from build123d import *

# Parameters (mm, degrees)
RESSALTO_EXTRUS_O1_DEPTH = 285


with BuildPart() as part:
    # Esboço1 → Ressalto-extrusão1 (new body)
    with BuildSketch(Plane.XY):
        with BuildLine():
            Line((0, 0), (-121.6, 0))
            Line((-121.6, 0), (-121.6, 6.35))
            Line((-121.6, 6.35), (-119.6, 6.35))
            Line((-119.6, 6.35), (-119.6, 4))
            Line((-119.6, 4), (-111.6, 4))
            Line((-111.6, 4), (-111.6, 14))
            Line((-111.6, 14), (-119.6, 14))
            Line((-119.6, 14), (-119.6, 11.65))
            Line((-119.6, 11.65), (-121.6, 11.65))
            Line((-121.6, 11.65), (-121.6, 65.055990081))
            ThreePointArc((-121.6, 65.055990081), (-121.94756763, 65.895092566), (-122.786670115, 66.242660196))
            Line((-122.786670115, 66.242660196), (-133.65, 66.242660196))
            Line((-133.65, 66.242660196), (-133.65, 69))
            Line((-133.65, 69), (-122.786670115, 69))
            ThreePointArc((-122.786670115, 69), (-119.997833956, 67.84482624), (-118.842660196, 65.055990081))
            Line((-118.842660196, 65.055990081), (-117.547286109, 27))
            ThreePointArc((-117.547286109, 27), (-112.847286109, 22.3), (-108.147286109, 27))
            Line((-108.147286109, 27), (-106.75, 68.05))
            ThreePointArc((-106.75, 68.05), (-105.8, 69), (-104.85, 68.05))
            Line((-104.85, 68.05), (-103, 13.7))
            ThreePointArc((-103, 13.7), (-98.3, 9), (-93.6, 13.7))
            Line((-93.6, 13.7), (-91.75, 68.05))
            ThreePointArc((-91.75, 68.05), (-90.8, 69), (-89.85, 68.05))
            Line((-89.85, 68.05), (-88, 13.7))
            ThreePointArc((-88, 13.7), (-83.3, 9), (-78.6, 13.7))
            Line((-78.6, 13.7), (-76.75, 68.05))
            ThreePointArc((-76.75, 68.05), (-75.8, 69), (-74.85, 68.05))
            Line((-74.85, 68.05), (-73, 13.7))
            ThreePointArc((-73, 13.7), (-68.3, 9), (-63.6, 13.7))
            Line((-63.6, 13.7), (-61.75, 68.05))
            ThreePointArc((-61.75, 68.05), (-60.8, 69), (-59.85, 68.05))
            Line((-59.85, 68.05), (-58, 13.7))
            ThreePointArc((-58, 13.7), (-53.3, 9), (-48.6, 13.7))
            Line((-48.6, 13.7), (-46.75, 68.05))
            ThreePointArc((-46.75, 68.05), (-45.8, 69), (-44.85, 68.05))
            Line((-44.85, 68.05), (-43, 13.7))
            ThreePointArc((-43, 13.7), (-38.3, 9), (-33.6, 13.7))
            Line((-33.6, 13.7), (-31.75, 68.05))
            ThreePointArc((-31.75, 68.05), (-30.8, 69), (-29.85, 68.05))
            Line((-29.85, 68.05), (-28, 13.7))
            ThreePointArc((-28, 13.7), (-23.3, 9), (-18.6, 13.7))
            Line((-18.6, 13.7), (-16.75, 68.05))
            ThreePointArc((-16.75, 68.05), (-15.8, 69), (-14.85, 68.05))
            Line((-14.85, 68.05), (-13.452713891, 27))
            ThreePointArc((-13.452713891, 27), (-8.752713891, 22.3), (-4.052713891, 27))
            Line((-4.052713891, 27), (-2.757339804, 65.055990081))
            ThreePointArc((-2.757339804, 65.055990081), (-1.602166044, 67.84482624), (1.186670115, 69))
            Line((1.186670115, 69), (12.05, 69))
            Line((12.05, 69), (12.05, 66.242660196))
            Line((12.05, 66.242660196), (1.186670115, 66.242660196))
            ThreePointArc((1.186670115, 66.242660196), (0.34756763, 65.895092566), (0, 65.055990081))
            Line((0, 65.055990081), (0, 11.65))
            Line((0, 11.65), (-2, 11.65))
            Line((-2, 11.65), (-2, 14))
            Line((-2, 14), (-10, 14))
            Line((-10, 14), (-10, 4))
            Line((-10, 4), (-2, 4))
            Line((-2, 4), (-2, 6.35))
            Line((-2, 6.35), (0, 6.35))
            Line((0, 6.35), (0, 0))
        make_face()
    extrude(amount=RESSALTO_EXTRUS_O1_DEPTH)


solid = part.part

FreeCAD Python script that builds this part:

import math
import FreeCAD as App
import Part
import Sketcher

V = App.Vector

doc = App.newDocument("Part")
body = doc.addObject("PartDesign::Body", "Body")

sketch1 = body.newObject("Sketcher::SketchObject", "Sketch")
sketch1.AttachmentSupport = (doc.getObject("XY_Plane"), [""])
sketch1.MapMode = "FlatFace"
sketch1.addGeometry([
    Part.LineSegment(V(-121.6, 0, 0), V(0, 0, 0)),
    Part.LineSegment(V(0, 0, 0), V(0, 6.3, 0)),
    Part.LineSegment(V(0, 6.3, 0), V(-2, 6.3, 0)),
    Part.LineSegment(V(-2, 6.3, 0), V(-2, 4, 0)),
    Part.LineSegment(V(-2, 4, 0), V(-10, 4, 0)),
    Part.LineSegment(V(-10, 4, 0), V(-10, 14, 0)),
    Part.LineSegment(V(-10, 14, 0), V(-2, 14, 0)),
    Part.LineSegment(V(-2, 14, 0), V(-2, 11.7, 0)),
    Part.LineSegment(V(-2, 11.7, 0), V(0, 11.7, 0)),
    Part.LineSegment(V(0, 11.7, 0), V(0, 65.1, 0)),
    Part.ArcOfCircle(Part.Circle(V(1.2, 65.1, 0), V(0, 0, 1), 1.2), math.radians(90), math.radians(180)),
    Part.LineSegment(V(1.2, 66.2, 0), V(12.1, 66.2, 0)),
    Part.LineSegment(V(12.1, 66.2, 0), V(12.1, 69, 0)),
    Part.LineSegment(V(12.1, 69, 0), V(1.2, 69, 0)),
    Part.ArcOfCircle(Part.Circle(V(1.2, 65.1, 0), V(0, 0, 1), 3.9), math.radians(90), math.radians(180)),
    Part.LineSegment(V(-2.8, 65.1, 0), V(-4.1, 27, 0)),
    Part.ArcOfCircle(Part.Circle(V(-8.8, 27, 0), V(0, 0, 1), 4.7), math.radians(180), math.radians(360)),
    Part.LineSegment(V(-13.5, 27, 0), V(-14.8, 68, 0)),
    Part.ArcOfCircle(Part.Circle(V(-15.8, 68, 0), V(0, 0, 1), 0.9), math.radians(0), math.radians(180)),
    Part.LineSegment(V(-16.8, 68, 0), V(-18.6, 13.7, 0)),
    Part.ArcOfCircle(Part.Circle(V(-23.3, 13.7, 0), V(0, 0, 1), 4.7), math.radians(180), math.radians(360)),
    Part.LineSegment(V(-28, 13.7, 0), V(-29.9, 68, 0)),
    Part.ArcOfCircle(Part.Circle(V(-30.8, 68, 0), V(0, 0, 1), 0.9), math.radians(0), math.radians(180)),
    Part.LineSegment(V(-31.8, 68, 0), V(-33.6, 13.7, 0)),
    Part.ArcOfCircle(Part.Circle(V(-38.3, 13.7, 0), V(0, 0, 1), 4.7), math.radians(180), math.radians(360)),
    Part.LineSegment(V(-43, 13.7, 0), V(-44.9, 68, 0)),
    Part.ArcOfCircle(Part.Circle(V(-45.8, 68, 0), V(0, 0, 1), 0.9), math.radians(0), math.radians(180)),
    Part.LineSegment(V(-46.8, 68, 0), V(-48.6, 13.7, 0)),
    Part.ArcOfCircle(Part.Circle(V(-53.3, 13.7, 0), V(0, 0, 1), 4.7), math.radians(180), math.radians(360)),
    Part.LineSegment(V(-58, 13.7, 0), V(-59.9, 68, 0)),
    Part.ArcOfCircle(Part.Circle(V(-60.8, 68, 0), V(0, 0, 1), 0.9), math.radians(0), math.radians(180)),
    Part.LineSegment(V(-61.8, 68, 0), V(-63.6, 13.7, 0)),
    Part.ArcOfCircle(Part.Circle(V(-68.3, 13.7, 0), V(0, 0, 1), 4.7), math.radians(180), math.radians(360)),
    Part.LineSegment(V(-73, 13.7, 0), V(-74.8, 68, 0)),
    Part.ArcOfCircle(Part.Circle(V(-75.8, 68, 0), V(0, 0, 1), 0.9), math.radians(0), math.radians(180)),
    Part.LineSegment(V(-76.8, 68, 0), V(-78.6, 13.7, 0)),
    Part.ArcOfCircle(Part.Circle(V(-83.3, 13.7, 0), V(0, 0, 1), 4.7), math.radians(180), math.radians(360)),
    Part.LineSegment(V(-88, 13.7, 0), V(-89.8, 68, 0)),
    Part.ArcOfCircle(Part.Circle(V(-90.8, 68, 0), V(0, 0, 1), 0.9), math.radians(0), math.radians(180)),
    Part.LineSegment(V(-91.8, 68, 0), V(-93.6, 13.7, 0)),
    Part.ArcOfCircle(Part.Circle(V(-98.3, 13.7, 0), V(0, 0, 1), 4.7), math.radians(180), math.radians(360)),
    Part.LineSegment(V(-103, 13.7, 0), V(-104.8, 68, 0)),
    Part.ArcOfCircle(Part.Circle(V(-105.8, 68, 0), V(0, 0, 1), 0.9), math.radians(0), math.radians(180)),
    Part.LineSegment(V(-106.8, 68, 0), V(-108.1, 27, 0)),
    Part.ArcOfCircle(Part.Circle(V(-112.8, 27, 0), V(0, 0, 1), 4.7), math.radians(180), math.radians(360)),
    Part.LineSegment(V(-117.5, 27, 0), V(-118.8, 65.1, 0)),
    Part.ArcOfCircle(Part.Circle(V(-122.8, 65.1, 0), V(0, 0, 1), 3.9), math.radians(0), math.radians(90)),
    Part.LineSegment(V(-122.8, 69, 0), V(-133.7, 69, 0)),
    Part.LineSegment(V(-133.7, 69, 0), V(-133.7, 66.2, 0)),
    Part.LineSegment(V(-133.7, 66.2, 0), V(-122.8, 66.2, 0)),
    Part.ArcOfCircle(Part.Circle(V(-122.8, 65.1, 0), V(0, 0, 1), 1.2), math.radians(0), math.radians(90)),
    Part.LineSegment(V(-121.6, 65.1, 0), V(-121.6, 11.7, 0)),
    Part.LineSegment(V(-121.6, 11.7, 0), V(-119.6, 11.7, 0)),
    Part.LineSegment(V(-119.6, 11.7, 0), V(-119.6, 14, 0)),
    Part.LineSegment(V(-119.6, 14, 0), V(-111.6, 14, 0)),
    Part.LineSegment(V(-111.6, 14, 0), V(-111.6, 4, 0)),
    Part.LineSegment(V(-111.6, 4, 0), V(-119.6, 4, 0)),
    Part.LineSegment(V(-119.6, 4, 0), V(-119.6, 6.3, 0)),
    Part.LineSegment(V(-119.6, 6.3, 0), V(-121.6, 6.3, 0)),
    Part.LineSegment(V(-121.6, 6.3, 0), V(-121.6, 0, 0)),
], False)
sketch1.addConstraint([
    Sketcher.Constraint("Coincident", 0, 2, 1, 1),
    Sketcher.Constraint("Coincident", 1, 2, 2, 1),
    Sketcher.Constraint("Coincident", 2, 2, 3, 1),
    Sketcher.Constraint("Coincident", 3, 2, 4, 1),
    Sketcher.Constraint("Coincident", 4, 2, 5, 1),
    Sketcher.Constraint("Coincident", 5, 2, 6, 1),
    Sketcher.Constraint("Coincident", 6, 2, 7, 1),
    Sketcher.Constraint("Coincident", 7, 2, 8, 1),
    Sketcher.Constraint("Coincident", 8, 2, 9, 1),
    Sketcher.Constraint("Tangent", 9, 2, 10, 2),
    Sketcher.Constraint("Tangent", 10, 1, 11, 1),
    Sketcher.Constraint("Coincident", 11, 2, 12, 1),
    Sketcher.Constraint("Coincident", 12, 2, 13, 1),
    Sketcher.Constraint("Tangent", 13, 2, 14, 1),
    Sketcher.Constraint("Coincident", 14, 2, 15, 1),
    Sketcher.Constraint("Coincident", 15, 2, 16, 2),
    Sketcher.Constraint("Coincident", 16, 1, 17, 1),
    Sketcher.Constraint("Coincident", 17, 2, 18, 1),
    Sketcher.Constraint("Coincident", 18, 2, 19, 1),
    Sketcher.Constraint("Coincident", 19, 2, 20, 2),
    Sketcher.Constraint("Coincident", 20, 1, 21, 1),
    Sketcher.Constraint("Coincident", 21, 2, 22, 1),
    Sketcher.Constraint("Coincident", 22, 2, 23, 1),
    Sketcher.Constraint("Coincident", 23, 2, 24, 2),
    Sketcher.Constraint("Coincident", 24, 1, 25, 1),
    Sketcher.Constraint("Coincident", 25, 2, 26, 1),
    Sketcher.Constraint("Coincident", 26, 2, 27, 1),
    Sketcher.Constraint("Coincident", 27, 2, 28, 2),
    Sketcher.Constraint("Coincident", 28, 1, 29, 1),
    Sketcher.Constraint("Coincident", 29, 2, 30, 1),
    Sketcher.Constraint("Coincident", 30, 2, 31, 1),
    Sketcher.Constraint("Coincident", 31, 2, 32, 2),
    Sketcher.Constraint("Coincident", 32, 1, 33, 1),
    Sketcher.Constraint("Coincident", 33, 2, 34, 1),
    Sketcher.Constraint("Coincident", 34, 2, 35, 1),
    Sketcher.Constraint("Coincident", 35, 2, 36, 2),
    Sketcher.Constraint("Coincident", 36, 1, 37, 1),
    Sketcher.Constraint("Coincident", 37, 2, 38, 1),
    Sketcher.Constraint("Coincident", 38, 2, 39, 1),
    Sketcher.Constraint("Coincident", 39, 2, 40, 2),
    Sketcher.Constraint("Coincident", 40, 1, 41, 1),
    Sketcher.Constraint("Coincident", 41, 2, 42, 1),
    Sketcher.Constraint("Coincident", 42, 2, 43, 1),
    Sketcher.Constraint("Coincident", 43, 2, 44, 2),
    Sketcher.Constraint("Coincident", 44, 1, 45, 1),
    Sketcher.Constraint("Coincident", 45, 2, 46, 1),
    Sketcher.Constraint("Tangent", 46, 2, 47, 1),
    Sketcher.Constraint("Coincident", 47, 2, 48, 1),
    Sketcher.Constraint("Coincident", 48, 2, 49, 1),
    Sketcher.Constraint("Tangent", 49, 2, 50, 2),
    Sketcher.Constraint("Tangent", 50, 1, 51, 1),
    Sketcher.Constraint("Coincident", 51, 2, 52, 1),
    Sketcher.Constraint("Coincident", 52, 2, 53, 1),
    Sketcher.Constraint("Coincident", 53, 2, 54, 1),
    Sketcher.Constraint("Coincident", 54, 2, 55, 1),
    Sketcher.Constraint("Coincident", 55, 2, 56, 1),
    Sketcher.Constraint("Coincident", 56, 2, 57, 1),
    Sketcher.Constraint("Coincident", 57, 2, 58, 1),
    Sketcher.Constraint("Coincident", 58, 2, 59, 1),
    Sketcher.Constraint("Coincident", 59, 2, 0, 1),
    Sketcher.Constraint("Horizontal", 0),
    Sketcher.Constraint("Vertical", 1),
    Sketcher.Constraint("Horizontal", 2),
    Sketcher.Constraint("Vertical", 3),
    Sketcher.Constraint("Horizontal", 4),
    Sketcher.Constraint("Vertical", 5),
    Sketcher.Constraint("Horizontal", 6),
    Sketcher.Constraint("Vertical", 7),
    Sketcher.Constraint("Horizontal", 8),
    Sketcher.Constraint("Vertical", 9),
    Sketcher.Constraint("Horizontal", 11),
    Sketcher.Constraint("Vertical", 12),
    Sketcher.Constraint("Horizontal", 13),
    Sketcher.Constraint("Horizontal", 47),
    Sketcher.Constraint("Vertical", 48),
    Sketcher.Constraint("Horizontal", 49),
    Sketcher.Constraint("Vertical", 51),
    Sketcher.Constraint("Horizontal", 52),
    Sketcher.Constraint("Vertical", 53),
    Sketcher.Constraint("Horizontal", 54),
    Sketcher.Constraint("Vertical", 55),
    Sketcher.Constraint("Horizontal", 56),
    Sketcher.Constraint("Vertical", 57),
    Sketcher.Constraint("Horizontal", 58),
    Sketcher.Constraint("Vertical", 59),
    Sketcher.Constraint("Coincident", 0, 2, -1, 1),
    Sketcher.Constraint("Coincident", 14, 3, 10, 3),
    Sketcher.Constraint("Coincident", 50, 3, 46, 3),
    Sketcher.Constraint("Equal", 16, 20),
    Sketcher.Constraint("Equal", 18, 22),
    Sketcher.Constraint("Equal", 20, 24),
    Sketcher.Constraint("Equal", 22, 26),
    Sketcher.Constraint("Equal", 24, 28),
    Sketcher.Constraint("Equal", 26, 30),
    Sketcher.Constraint("Equal", 28, 32),
    Sketcher.Constraint("Equal", 30, 34),
    Sketcher.Constraint("Equal", 32, 36),
    Sketcher.Constraint("Equal", 34, 38),
    Sketcher.Constraint("Equal", 36, 40),
    Sketcher.Constraint("Equal", 38, 42),
    Sketcher.Constraint("Equal", 40, 44),
    Sketcher.Constraint("Equal", 14, 46),
    Sketcher.Constraint("Equal", 10, 50),
    Sketcher.Constraint("PointOnObject", 8, 2, -2),
    Sketcher.Constraint("Parallel", 15, 19),
    Sketcher.Constraint("Parallel", 17, 21),
    Sketcher.Constraint("Parallel", 19, 23),
    Sketcher.Constraint("Parallel", 21, 25),
    Sketcher.Constraint("Parallel", 23, 27),
    Sketcher.Constraint("Parallel", 25, 29),
    Sketcher.Constraint("Parallel", 27, 31),
    Sketcher.Constraint("Parallel", 29, 33),
    Sketcher.Constraint("Parallel", 31, 35),
    Sketcher.Constraint("Parallel", 33, 37),
    Sketcher.Constraint("Parallel", 35, 39),
    Sketcher.Constraint("Parallel", 37, 41),
    Sketcher.Constraint("Parallel", 39, 43),
    Sketcher.Constraint("Parallel", 41, 45),
    Sketcher.Constraint("Horizontal", 18, 3, 22, 3),
    Sketcher.Constraint("Horizontal", 20, 3, 24, 3),
    Sketcher.Constraint("Horizontal", 22, 3, 26, 3),
    Sketcher.Constraint("Horizontal", 24, 3, 28, 3),
    Sketcher.Constraint("Horizontal", 26, 3, 30, 3),
    Sketcher.Constraint("Horizontal", 28, 3, 32, 3),
    Sketcher.Constraint("Horizontal", 30, 3, 34, 3),
    Sketcher.Constraint("Horizontal", 32, 3, 36, 3),
    Sketcher.Constraint("Horizontal", 34, 3, 38, 3),
    Sketcher.Constraint("Horizontal", 36, 3, 40, 3),
    Sketcher.Constraint("Horizontal", 38, 3, 42, 3),
    Sketcher.Constraint("Horizontal", 16, 3, 44, 3),
    Sketcher.Constraint("Horizontal", 14, 3, 46, 3),
    Sketcher.Constraint("Horizontal", 9, 2, 14, 2),
    Sketcher.Constraint("Horizontal", 44, 3, 15, 2),
    Sketcher.Constraint("Horizontal", 15, 2, 16, 1),
    Sketcher.Constraint("Horizontal", 42, 3, 17, 2),
    Sketcher.Constraint("Horizontal", 17, 2, 18, 2),
    Sketcher.Constraint("Horizontal", 40, 3, 19, 2),
    Sketcher.Constraint("Horizontal", 19, 2, 20, 1),
    Sketcher.Constraint("Horizontal", 18, 2, 21, 2),
    Sketcher.Constraint("Horizontal", 21, 2, 22, 2),
    Sketcher.Constraint("Horizontal", 20, 1, 23, 2),
    Sketcher.Constraint("Horizontal", 23, 2, 24, 1),
    Sketcher.Constraint("Horizontal", 22, 2, 25, 2),
    Sketcher.Constraint("Horizontal", 25, 2, 26, 2),
    Sketcher.Constraint("Horizontal", 24, 1, 27, 2),
    Sketcher.Constraint("Horizontal", 27, 2, 28, 1),
    Sketcher.Constraint("Horizontal", 26, 2, 29, 2),
    Sketcher.Constraint("Horizontal", 29, 2, 30, 2),
    Sketcher.Constraint("Horizontal", 28, 1, 31, 2),
    Sketcher.Constraint("Horizontal", 31, 2, 32, 1),
    Sketcher.Constraint("Horizontal", 30, 2, 33, 2),
    Sketcher.Constraint("Horizontal", 33, 2, 34, 2),
    Sketcher.Constraint("Horizontal", 32, 1, 35, 2),
    Sketcher.Constraint("Horizontal", 35, 2, 36, 1),
    Sketcher.Constraint("Horizontal", 34, 2, 37, 2),
    Sketcher.Constraint("Horizontal", 37, 2, 38, 2),
    Sketcher.Constraint("Horizontal", 36, 1, 39, 2),
    Sketcher.Constraint("Horizontal", 39, 2, 40, 1),
    Sketcher.Constraint("Horizontal", 38, 2, 41, 2),
    Sketcher.Constraint("Horizontal", 41, 2, 42, 2),
    Sketcher.Constraint("Horizontal", 16, 1, 43, 2),
    Sketcher.Constraint("Horizontal", 43, 2, 44, 1),
    Sketcher.Constraint("Horizontal", 14, 2, 45, 2),
    Sketcher.Constraint("Horizontal", 8, 2, 51, 2),
    Sketcher.Constraint("Horizontal", 6, 2, 53, 2),
    Sketcher.Constraint("Horizontal", 4, 2, 55, 2),
    Sketcher.Constraint("Horizontal", 2, 2, 57, 2),
    Sketcher.Constraint("Vertical", 3, 2, 6, 2),
    Sketcher.Constraint("Vertical", 53, 2, 56, 2),
    Sketcher.Constraint("Vertical", 51, 2, 58, 2),
    Sketcher.Constraint("Equal", 13, 47),
    Sketcher.Constraint("Equal", 8, 52),
    Sketcher.Constraint("Equal", 6, 54),
    Sketcher.Constraint("Equal", 3, 7),
    Sketcher.Constraint("Equal", 19, 21),
    Sketcher.Constraint("Radius", 16, 4.7),
    Sketcher.Constraint("DistanceX", 2, 2, 2, 1, 2.0),
    Sketcher.Constraint("DistanceX", 4, 2, 4, 1, 8.0),
    Sketcher.Constraint("DistanceY", 5, 1, 5, 2, 10.0),
    Sketcher.Constraint("Radius", 18, 0.95),
    Sketcher.Constraint("DistanceX", 0, 1, 0, 2, 121.6),
    Sketcher.Constraint("DistanceY", -1, 1, 16, 3, 27.0),
    Sketcher.Constraint("DistanceY", -1, 1, 3, 2, 4.0),
    Sketcher.Constraint("DistanceY", -1, 1, 12, 2, 69.0),
    Sketcher.Constraint("DistanceX", 20, 1, -1, 1, 28.0),
    Sketcher.Constraint("DistanceY", 1, 1, 1, 2, 6.35),
    Sketcher.Constraint("DistanceY", -1, 1, 20, 3, 13.7),
    Sketcher.Constraint("DistanceY", -1, 1, 18, 3, 68.05),
    Sketcher.Constraint("DistanceX", -1, 1, 11, 2, 12.05),
    Sketcher.Constraint("Radius", 10, 1.18667),
])
pad1 = body.newObject("PartDesign::Pad", "Pad")
pad1.Profile = sketch1
pad1.Length = 285

doc.recompute()
